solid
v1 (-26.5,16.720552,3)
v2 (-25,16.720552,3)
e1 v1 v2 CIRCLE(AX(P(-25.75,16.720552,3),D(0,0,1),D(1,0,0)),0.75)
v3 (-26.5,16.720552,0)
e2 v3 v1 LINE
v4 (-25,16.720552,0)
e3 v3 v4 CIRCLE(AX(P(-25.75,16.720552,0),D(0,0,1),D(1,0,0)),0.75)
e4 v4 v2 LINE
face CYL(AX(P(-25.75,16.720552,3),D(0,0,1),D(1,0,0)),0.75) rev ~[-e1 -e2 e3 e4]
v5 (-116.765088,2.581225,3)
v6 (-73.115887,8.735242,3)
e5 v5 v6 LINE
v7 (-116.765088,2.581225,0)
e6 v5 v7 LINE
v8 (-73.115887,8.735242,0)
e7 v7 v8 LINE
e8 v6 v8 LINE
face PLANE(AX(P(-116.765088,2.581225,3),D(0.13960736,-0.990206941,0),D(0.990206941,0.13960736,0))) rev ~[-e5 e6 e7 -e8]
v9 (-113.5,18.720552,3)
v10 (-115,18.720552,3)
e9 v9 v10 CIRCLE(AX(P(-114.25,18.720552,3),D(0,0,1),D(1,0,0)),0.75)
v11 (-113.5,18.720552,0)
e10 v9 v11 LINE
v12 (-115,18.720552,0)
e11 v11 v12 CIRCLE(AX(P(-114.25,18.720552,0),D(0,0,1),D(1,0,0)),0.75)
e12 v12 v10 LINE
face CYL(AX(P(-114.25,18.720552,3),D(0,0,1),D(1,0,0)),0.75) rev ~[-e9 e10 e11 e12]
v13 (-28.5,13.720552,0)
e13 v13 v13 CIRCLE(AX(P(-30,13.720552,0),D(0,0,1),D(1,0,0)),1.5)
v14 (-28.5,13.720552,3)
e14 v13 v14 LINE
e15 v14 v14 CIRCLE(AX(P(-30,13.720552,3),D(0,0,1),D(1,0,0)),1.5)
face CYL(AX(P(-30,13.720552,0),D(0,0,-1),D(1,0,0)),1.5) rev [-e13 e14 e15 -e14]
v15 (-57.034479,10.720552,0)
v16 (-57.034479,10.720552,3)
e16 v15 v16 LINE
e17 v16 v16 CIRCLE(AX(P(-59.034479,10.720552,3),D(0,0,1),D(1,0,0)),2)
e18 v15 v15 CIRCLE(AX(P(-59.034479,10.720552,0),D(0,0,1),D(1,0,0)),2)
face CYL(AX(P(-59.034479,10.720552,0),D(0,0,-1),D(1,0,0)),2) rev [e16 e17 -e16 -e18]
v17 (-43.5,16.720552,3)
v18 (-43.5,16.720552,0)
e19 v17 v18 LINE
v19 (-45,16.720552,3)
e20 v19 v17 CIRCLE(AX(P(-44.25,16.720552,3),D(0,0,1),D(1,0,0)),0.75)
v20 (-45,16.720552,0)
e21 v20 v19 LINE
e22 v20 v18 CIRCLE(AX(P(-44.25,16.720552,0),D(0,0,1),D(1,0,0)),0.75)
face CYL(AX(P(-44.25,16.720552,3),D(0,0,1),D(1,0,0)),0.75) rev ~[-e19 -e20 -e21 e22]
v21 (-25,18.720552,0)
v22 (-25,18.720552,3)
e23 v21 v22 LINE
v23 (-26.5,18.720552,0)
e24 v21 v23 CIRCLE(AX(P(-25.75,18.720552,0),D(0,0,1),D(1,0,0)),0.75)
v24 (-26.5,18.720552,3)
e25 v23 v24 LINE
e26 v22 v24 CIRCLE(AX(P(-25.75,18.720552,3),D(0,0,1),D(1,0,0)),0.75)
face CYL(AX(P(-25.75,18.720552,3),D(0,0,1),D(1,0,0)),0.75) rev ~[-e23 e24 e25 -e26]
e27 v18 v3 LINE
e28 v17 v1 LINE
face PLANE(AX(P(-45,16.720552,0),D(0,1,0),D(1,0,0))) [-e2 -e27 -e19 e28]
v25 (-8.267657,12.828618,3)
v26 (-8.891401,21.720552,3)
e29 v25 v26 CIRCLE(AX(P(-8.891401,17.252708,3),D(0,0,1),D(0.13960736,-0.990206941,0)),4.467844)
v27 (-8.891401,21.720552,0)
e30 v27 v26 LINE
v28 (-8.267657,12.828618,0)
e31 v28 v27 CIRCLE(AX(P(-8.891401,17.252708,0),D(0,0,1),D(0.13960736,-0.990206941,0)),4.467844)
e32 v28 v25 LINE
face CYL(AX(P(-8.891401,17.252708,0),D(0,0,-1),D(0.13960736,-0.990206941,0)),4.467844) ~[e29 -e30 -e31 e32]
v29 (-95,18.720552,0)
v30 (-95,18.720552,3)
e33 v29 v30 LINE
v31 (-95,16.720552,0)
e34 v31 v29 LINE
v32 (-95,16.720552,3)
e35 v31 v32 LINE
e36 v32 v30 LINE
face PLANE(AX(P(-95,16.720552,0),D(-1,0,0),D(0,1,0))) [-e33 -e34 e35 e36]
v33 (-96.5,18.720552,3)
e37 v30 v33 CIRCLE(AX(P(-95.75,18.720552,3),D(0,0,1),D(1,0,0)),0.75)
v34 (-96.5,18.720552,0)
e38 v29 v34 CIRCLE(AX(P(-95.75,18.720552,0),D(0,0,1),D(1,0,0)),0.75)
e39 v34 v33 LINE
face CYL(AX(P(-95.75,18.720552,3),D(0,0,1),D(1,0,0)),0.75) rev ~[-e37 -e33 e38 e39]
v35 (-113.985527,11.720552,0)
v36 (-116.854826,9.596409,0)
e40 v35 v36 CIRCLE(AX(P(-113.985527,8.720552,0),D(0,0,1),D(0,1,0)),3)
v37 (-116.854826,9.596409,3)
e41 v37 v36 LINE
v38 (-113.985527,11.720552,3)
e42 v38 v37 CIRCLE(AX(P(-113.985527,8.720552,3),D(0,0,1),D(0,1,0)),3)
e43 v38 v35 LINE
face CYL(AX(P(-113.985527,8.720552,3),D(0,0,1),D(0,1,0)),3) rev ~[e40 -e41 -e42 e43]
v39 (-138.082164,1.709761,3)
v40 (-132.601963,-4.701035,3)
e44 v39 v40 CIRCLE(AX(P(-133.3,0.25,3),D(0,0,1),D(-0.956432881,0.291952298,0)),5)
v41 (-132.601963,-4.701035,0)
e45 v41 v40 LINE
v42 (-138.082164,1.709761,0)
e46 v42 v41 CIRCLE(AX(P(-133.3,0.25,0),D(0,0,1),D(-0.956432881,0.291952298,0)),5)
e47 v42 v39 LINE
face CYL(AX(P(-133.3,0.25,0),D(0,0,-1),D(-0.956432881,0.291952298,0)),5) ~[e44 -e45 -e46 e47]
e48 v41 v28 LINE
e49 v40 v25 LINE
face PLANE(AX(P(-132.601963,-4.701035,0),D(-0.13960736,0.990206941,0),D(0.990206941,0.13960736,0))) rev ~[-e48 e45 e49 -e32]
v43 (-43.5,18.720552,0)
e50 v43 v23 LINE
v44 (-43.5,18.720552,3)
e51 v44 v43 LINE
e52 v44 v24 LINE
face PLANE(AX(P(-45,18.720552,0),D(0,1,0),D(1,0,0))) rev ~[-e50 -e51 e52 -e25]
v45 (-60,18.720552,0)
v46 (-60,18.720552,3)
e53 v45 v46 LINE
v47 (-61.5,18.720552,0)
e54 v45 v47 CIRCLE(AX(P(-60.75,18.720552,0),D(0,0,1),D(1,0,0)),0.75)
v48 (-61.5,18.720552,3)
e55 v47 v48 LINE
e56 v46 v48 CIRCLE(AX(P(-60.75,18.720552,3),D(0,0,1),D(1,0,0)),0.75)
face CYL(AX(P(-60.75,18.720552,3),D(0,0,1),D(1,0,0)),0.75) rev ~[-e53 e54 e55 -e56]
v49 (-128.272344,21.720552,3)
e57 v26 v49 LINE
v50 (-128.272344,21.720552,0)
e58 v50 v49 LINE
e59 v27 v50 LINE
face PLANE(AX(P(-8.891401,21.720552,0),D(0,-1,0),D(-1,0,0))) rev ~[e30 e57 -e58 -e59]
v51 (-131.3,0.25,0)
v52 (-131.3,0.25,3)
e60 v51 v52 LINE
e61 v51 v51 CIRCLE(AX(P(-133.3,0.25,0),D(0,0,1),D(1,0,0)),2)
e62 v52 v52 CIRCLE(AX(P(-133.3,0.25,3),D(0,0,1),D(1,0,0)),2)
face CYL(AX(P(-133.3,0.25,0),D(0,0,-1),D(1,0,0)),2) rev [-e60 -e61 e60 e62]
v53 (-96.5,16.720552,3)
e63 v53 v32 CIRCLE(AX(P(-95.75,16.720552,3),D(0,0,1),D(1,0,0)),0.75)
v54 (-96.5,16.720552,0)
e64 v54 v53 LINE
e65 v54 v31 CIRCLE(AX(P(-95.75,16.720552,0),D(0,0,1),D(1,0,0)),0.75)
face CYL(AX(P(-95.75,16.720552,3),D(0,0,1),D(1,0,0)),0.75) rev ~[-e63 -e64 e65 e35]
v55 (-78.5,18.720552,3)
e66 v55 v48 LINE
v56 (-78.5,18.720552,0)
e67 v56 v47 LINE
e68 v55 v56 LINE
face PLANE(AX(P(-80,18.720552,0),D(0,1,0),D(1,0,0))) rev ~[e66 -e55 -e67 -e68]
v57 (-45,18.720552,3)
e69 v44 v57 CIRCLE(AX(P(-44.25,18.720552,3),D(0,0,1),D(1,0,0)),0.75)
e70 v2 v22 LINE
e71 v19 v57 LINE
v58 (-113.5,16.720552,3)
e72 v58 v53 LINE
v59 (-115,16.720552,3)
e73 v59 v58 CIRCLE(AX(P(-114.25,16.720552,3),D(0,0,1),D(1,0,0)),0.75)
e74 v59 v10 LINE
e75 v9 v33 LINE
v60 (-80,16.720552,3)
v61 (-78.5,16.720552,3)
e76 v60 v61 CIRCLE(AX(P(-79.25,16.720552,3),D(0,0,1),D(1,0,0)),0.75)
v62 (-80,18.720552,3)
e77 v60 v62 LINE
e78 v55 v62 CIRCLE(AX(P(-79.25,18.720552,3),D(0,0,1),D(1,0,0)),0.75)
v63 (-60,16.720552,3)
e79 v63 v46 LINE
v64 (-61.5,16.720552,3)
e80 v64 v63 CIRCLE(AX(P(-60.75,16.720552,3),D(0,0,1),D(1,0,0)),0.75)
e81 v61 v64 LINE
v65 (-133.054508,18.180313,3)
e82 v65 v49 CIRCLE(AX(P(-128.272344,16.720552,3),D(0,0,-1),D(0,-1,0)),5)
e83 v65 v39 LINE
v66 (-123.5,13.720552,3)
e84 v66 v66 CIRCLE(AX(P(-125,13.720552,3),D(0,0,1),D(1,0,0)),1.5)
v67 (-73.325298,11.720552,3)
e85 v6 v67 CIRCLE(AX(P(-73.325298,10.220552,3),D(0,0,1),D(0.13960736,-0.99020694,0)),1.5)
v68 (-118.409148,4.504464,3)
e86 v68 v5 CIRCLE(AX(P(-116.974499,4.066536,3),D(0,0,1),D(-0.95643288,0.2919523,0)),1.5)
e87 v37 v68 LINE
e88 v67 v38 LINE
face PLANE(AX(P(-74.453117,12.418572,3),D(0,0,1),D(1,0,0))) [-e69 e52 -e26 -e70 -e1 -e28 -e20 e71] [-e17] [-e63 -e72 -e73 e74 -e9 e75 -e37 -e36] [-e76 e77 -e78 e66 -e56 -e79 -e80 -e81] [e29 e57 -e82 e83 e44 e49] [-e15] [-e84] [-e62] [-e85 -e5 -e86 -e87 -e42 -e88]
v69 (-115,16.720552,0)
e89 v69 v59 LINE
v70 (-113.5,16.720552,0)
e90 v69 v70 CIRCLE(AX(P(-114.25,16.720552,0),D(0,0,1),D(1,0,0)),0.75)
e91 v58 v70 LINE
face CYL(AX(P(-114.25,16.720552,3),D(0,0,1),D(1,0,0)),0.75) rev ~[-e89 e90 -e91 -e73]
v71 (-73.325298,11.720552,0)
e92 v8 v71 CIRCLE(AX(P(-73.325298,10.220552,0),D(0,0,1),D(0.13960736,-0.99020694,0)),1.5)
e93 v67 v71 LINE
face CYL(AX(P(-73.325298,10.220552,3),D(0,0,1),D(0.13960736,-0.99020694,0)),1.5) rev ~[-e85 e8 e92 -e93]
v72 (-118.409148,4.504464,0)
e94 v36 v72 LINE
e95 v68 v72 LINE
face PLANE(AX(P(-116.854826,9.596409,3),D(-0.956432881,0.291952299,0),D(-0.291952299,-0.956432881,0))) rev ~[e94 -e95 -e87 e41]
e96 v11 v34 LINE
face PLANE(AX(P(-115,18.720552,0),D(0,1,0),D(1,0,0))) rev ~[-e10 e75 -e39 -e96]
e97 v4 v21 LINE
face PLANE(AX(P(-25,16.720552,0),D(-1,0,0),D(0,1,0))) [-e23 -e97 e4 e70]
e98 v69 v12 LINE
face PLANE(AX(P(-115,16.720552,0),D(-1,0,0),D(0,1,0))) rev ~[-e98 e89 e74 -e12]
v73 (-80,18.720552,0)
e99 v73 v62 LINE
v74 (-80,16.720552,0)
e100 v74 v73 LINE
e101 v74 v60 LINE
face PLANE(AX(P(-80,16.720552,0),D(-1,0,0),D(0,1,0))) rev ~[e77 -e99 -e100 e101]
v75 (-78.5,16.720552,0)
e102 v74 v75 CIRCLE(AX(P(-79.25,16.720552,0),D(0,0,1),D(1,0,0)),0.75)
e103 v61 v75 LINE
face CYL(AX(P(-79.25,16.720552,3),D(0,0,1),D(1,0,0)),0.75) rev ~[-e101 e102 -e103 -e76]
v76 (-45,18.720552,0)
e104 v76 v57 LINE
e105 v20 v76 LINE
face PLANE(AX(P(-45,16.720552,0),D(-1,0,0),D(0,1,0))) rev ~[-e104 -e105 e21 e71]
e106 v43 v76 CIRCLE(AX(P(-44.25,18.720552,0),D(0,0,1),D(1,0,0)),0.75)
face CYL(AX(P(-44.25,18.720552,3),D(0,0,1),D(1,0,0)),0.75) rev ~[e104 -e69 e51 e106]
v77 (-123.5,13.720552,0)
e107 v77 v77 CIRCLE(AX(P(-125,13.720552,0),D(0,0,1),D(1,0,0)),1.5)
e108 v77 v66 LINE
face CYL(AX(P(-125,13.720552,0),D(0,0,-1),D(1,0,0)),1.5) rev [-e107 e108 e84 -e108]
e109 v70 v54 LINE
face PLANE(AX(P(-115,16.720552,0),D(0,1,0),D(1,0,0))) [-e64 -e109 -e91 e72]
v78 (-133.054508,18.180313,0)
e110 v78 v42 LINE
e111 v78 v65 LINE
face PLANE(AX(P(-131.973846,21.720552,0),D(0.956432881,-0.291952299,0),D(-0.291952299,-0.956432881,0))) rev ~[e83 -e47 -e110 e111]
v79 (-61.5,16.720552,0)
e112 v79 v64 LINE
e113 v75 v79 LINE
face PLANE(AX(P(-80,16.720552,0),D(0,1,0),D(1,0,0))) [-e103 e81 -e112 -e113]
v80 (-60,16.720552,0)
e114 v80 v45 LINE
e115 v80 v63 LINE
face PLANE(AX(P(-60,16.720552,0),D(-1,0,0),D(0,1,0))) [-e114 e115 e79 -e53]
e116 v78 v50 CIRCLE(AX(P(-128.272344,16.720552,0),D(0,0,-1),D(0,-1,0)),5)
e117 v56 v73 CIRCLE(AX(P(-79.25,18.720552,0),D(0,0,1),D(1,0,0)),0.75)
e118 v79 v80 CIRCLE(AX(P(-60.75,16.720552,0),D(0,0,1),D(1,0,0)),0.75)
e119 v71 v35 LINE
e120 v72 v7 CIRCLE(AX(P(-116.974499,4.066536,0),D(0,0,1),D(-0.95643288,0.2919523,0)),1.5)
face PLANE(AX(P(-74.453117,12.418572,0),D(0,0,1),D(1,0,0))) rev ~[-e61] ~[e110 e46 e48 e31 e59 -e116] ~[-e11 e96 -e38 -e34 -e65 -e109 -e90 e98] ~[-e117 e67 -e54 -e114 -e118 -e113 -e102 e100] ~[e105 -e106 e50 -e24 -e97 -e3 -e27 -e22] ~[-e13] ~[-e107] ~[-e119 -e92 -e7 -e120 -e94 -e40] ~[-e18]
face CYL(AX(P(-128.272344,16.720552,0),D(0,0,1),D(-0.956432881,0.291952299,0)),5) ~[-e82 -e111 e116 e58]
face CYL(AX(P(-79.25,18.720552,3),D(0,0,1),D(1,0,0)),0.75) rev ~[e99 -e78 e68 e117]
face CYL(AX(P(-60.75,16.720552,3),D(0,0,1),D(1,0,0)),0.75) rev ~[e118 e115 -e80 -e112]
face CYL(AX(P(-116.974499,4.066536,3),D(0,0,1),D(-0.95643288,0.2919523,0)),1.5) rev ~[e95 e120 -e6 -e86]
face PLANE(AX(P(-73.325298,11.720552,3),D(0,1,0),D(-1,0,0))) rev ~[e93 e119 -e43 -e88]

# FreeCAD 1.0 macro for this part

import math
import FreeCAD as App
import Part
import Sketcher


def edges_at(feature, points):
    """Names of the edges that pass closest to the given points."""
    edges = feature.Shape.Edges
    near = lambda p: min(range(len(edges)), key=lambda i: edges[i].distToShape(Part.Vertex(*p))[0])
    return sorted({f"Edge{near(p) + 1}" for p in points})

doc = App.newDocument("Part")
body = doc.addObject("PartDesign::Body", "Body")

sketch1 = doc.addObject("Sketcher::SketchObject", "Sketch")
body.addObject(sketch1)
sketch1.AttachmentSupport = (doc.XY_Plane, [""])
sketch1.MapMode = "FlatFace"
sketch1.addGeometry([
    Part.LineSegment(App.Vector(-132.6, -4.7, 0), App.Vector(-8.3, 12.8, 0)),
    Part.ArcOfCircle(Part.Circle(App.Vector(-8.9, 17.3, 0), App.Vector(0, 0, 1), 4.5), math.radians(-82), math.radians(90)),
    Part.LineSegment(App.Vector(-8.9, 21.7, 0), App.Vector(-132, 21.7, 0)),
    Part.LineSegment(App.Vector(-132, 21.7, 0), App.Vector(-138.1, 1.7, 0)),
    Part.ArcOfCircle(Part.Circle(App.Vector(-133.3, 0.3, 0), App.Vector(0, 0, 1), 5), math.radians(163), math.radians(278)),
    Part.Circle(App.Vector(-133.3, 0.2, 0), App.Vector(0, 0, 1), 2),
    Part.Circle(App.Vector(-125, 13.7, 0), App.Vector(0, 0, 1), 1.5),
    Part.LineSegment(App.Vector(-95, 16.7, 0), App.Vector(-115, 16.7, 0)),
    Part.LineSegment(App.Vector(-115, 16.7, 0), App.Vector(-115, 18.7, 0)),
    Part.LineSegment(App.Vector(-115, 18.7, 0), App.Vector(-95, 18.7, 0)),
    Part.LineSegment(App.Vector(-95, 18.7, 0), App.Vector(-95, 16.7, 0)),
    Part.Circle(App.Vector(-59, 10.7, 0), App.Vector(0, 0, 1), 2),
    Part.LineSegment(App.Vector(-60, 16.7, 0), App.Vector(-80, 16.7, 0)),
    Part.LineSegment(App.Vector(-80, 16.7, 0), App.Vector(-80, 18.7, 0)),
    Part.LineSegment(App.Vector(-80, 18.7, 0), App.Vector(-60, 18.7, 0)),
    Part.LineSegment(App.Vector(-60, 18.7, 0), App.Vector(-60, 16.7, 0)),
    Part.Circle(App.Vector(-30, 13.7, 0), App.Vector(0, 0, 1), 1.5),
    Part.LineSegment(App.Vector(-25, 16.7, 0), App.Vector(-45, 16.7, 0)),
    Part.LineSegment(App.Vector(-45, 16.7, 0), App.Vector(-45, 18.7, 0)),
    Part.LineSegment(App.Vector(-45, 18.7, 0), App.Vector(-25, 18.7, 0)),
    Part.LineSegment(App.Vector(-25, 18.7, 0), App.Vector(-25, 16.7, 0)),
], False)
sketch1.addConstraint([
    Sketcher.Constraint("Tangent", 0, 2, 1, 1),
    Sketcher.Constraint("Tangent", 1, 2, 2, 1),
    Sketcher.Constraint("Coincident", 2, 2, 3, 1),
    Sketcher.Constraint("Tangent", 3, 2, 4, 1),
    Sketcher.Constraint("Tangent", 4, 2, 0, 1),
    Sketcher.Constraint("Coincident", 7, 2, 8, 1),
    Sketcher.Constraint("Coincident", 8, 2, 9, 1),
    Sketcher.Constraint("Coincident", 9, 2, 10, 1),
    Sketcher.Constraint("Coincident", 10, 2, 7, 1),
    Sketcher.Constraint("Coincident", 12, 2, 13, 1),
    Sketcher.Constraint("Coincident", 13, 2, 14, 1),
    Sketcher.Constraint("Coincident", 14, 2, 15, 1),
    Sketcher.Constraint("Coincident", 15, 2, 12, 1),
    Sketcher.Constraint("Coincident", 17, 2, 18, 1),
    Sketcher.Constraint("Coincident", 18, 2, 19, 1),
    Sketcher.Constraint("Coincident", 19, 2, 20, 1),
    Sketcher.Constraint("Coincident", 20, 2, 17, 1),
    Sketcher.Constraint("Horizontal", 2),
    Sketcher.Constraint("Horizontal", 7),
    Sketcher.Constraint("Vertical", 8),
    Sketcher.Constraint("Horizontal", 9),
    Sketcher.Constraint("Vertical", 10),
    Sketcher.Constraint("Horizontal", 12),
    Sketcher.Constraint("Vertical", 13),
    Sketcher.Constraint("Horizontal", 14),
    Sketcher.Constraint("Vertical", 15),
    Sketcher.Constraint("Horizontal", 17),
    Sketcher.Constraint("Vertical", 18),
    Sketcher.Constraint("Horizontal", 19),
    Sketcher.Constraint("Vertical", 20),
    Sketcher.Constraint("Coincident", 5, 3, 4, 3),
    Sketcher.Constraint("Equal", 5, 11),
    Sketcher.Constraint("Equal", 6, 16),
    Sketcher.Constraint("Horizontal", 6, 3, 16, 3),
    Sketcher.Constraint("Horizontal", 10, 2, 12, 2),
    Sketcher.Constraint("Horizontal", 9, 2, 13, 2),
    Sketcher.Constraint("Horizontal", 15, 2, 17, 2),
    Sketcher.Constraint("Horizontal", 14, 2, 18, 2),
    Sketcher.Constraint("Equal", 9, 12),
    Sketcher.Constraint("Equal", 14, 17),
    Sketcher.Constraint("Diameter", 5, 4.0),
    Sketcher.Constraint("Diameter", 6, 3.0),
    Sketcher.Constraint("Radius", 4, 5.0),
    Sketcher.Constraint("DistanceX", 7, 2, 7, 1, 20.0),
    Sketcher.Constraint("DistanceY", 8, 1, 8, 2, 2.0),
    Sketcher.Constraint("DistanceX", 6, 3, -1, 1, 125.0),
    Sketcher.Constraint("DistanceX", 16, 3, -1, 1, 30.0),
    Sketcher.Constraint("DistanceX", 7, 2, -1, 1, 115.0),
    Sketcher.Constraint("DistanceX", 12, 2, -1, 1, 80.0),
    Sketcher.Constraint("DistanceX", 17, 2, -1, 1, 45.0),
    Sketcher.Constraint("DistanceY", 11, 3, 6, 3, 3.0),
    Sketcher.Constraint("DistanceY", 16, 3, 1, 2, 8.0),
    Sketcher.Constraint("DistanceY", 6, 3, 7, 2, 3.0),
    Sketcher.Constraint("DistanceX", 4, 3, -1, 1, 133.3),
    Sketcher.Constraint("DistanceY", -1, 1, 4, 3, 0.25),
    Sketcher.Constraint("Radius", 1, 4.467844),
    Sketcher.Constraint("DistanceX", 1, 3, -1, 1, 8.891401),
    Sketcher.Constraint("DistanceX", 3, 2, 4, 2, 5.480201),
    Sketcher.Constraint("Distance", 0, 125.563962),
    Sketcher.Constraint("DistanceX", 11, 3, -1, 1, 59.034479),
])
pad1 = doc.addObject("PartDesign::Pad", "Pad")
body.addObject(pad1)
pad1.Profile = sketch1
pad1.Length = 3

sketch2 = doc.addObject("Sketcher::SketchObject", "Sketch001")
body.addObject(sketch2)
sketch2.AttachmentSupport = (doc.XY_Plane, [""])
sketch2.MapMode = "FlatFace"
sketch2.AttachmentOffset = App.Placement(App.Vector(0, 0, 3), App.Rotation())
sketch2.addGeometry([
    Part.Circle(App.Vector(-114.2, 18.7, 0), App.Vector(0, 0, 1), 0.8),
    Part.Circle(App.Vector(-114.2, 16.7, 0), App.Vector(0, 0, 1), 0.8),
    Part.Circle(App.Vector(-95.8, 18.7, 0), App.Vector(0, 0, 1), 0.8),
    Part.Circle(App.Vector(-95.8, 16.7, 0), App.Vector(0, 0, 1), 0.8),
    Part.Circle(App.Vector(-79.2, 18.7, 0), App.Vector(0, 0, 1), 0.8),
    Part.Circle(App.Vector(-79.2, 16.7, 0), App.Vector(0, 0, 1), 0.8),
    Part.Circle(App.Vector(-60.8, 18.7, 0), App.Vector(0, 0, 1), 0.8),
    Part.Circle(App.Vector(-60.8, 16.7, 0), App.Vector(0, 0, 1), 0.8),
    Part.Circle(App.Vector(-44.2, 18.7, 0), App.Vector(0, 0, 1), 0.8),
    Part.Circle(App.Vector(-44.2, 16.7, 0), App.Vector(0, 0, 1), 0.8),
    Part.Circle(App.Vector(-25.8, 18.7, 0), App.Vector(0, 0, 1), 0.8),
    Part.Circle(App.Vector(-25.8, 16.7, 0), App.Vector(0, 0, 1), 0.8),
    Part.LineSegment(App.Vector(-116.9, 9.6, 0), App.Vector(-118.4, 4.5, 0)),
    Part.ArcOfCircle(Part.Circle(App.Vector(-117, 4.1, 0), App.Vector(0, 0, 1), 1.5), math.radians(163), math.radians(278)),
    Part.LineSegment(App.Vector(-116.8, 2.6, 0), App.Vector(-73.1, 8.7, 0)),
    Part.ArcOfCircle(Part.Circle(App.Vector(-73.3, 10.2, 0), App.Vector(0, 0, 1), 1.5), math.radians(-82), math.radians(90)),
    Part.LineSegment(App.Vector(-73.3, 11.7, 0), App.Vector(-114, 11.7, 0)),
    Part.ArcOfCircle(Part.Circle(App.Vector(-114, 8.7, 0), App.Vector(0, 0, 1), 3), math.radians(90), math.radians(163)),
], False)
sketch2.addConstraint([
    Sketcher.Constraint("Tangent", 12, 2, 13, 1),
    Sketcher.Constraint("Tangent", 13, 2, 14, 1),
    Sketcher.Constraint("Tangent", 14, 2, 15, 1),
    Sketcher.Constraint("Tangent", 15, 2, 16, 1),
    Sketcher.Constraint("Tangent", 16, 2, 17, 1),
    Sketcher.Constraint("Tangent", 17, 2, 12, 1),
    Sketcher.Constraint("Horizontal", 16),
    Sketcher.Constraint("Equal", 0, 1),
    Sketcher.Constraint("Equal", 1, 2),
    Sketcher.Constraint("Equal", 2, 3),
    Sketcher.Constraint("Equal", 3, 4),
    Sketcher.Constraint("Equal", 4, 5),
    Sketcher.Constraint("Equal", 5, 6),
    Sketcher.Constraint("Equal", 6, 7),
    Sketcher.Constraint("Equal", 7, 8),
    Sketcher.Constraint("Equal", 8, 9),
    Sketcher.Constraint("Equal", 9, 10),
    Sketcher.Constraint("Equal", 10, 11),
    Sketcher.Constraint("Equal", 13, 15),
    Sketcher.Constraint("Horizontal", 0, 3, 2, 3),
    Sketcher.Constraint("Horizontal", 1, 3, 3, 3),
    Sketcher.Constraint("Horizontal", 2, 3, 4, 3),
    Sketcher.Constraint("Horizontal", 3, 3, 5, 3),
    Sketcher.Constraint("Horizontal", 4, 3, 6, 3),
    Sketcher.Constraint("Horizontal", 5, 3, 7, 3),
    Sketcher.Constraint("Horizontal", 6, 3, 8, 3),
    Sketcher.Constraint("Horizontal", 7, 3, 9, 3),
    Sketcher.Constraint("Horizontal", 8, 3, 10, 3),
    Sketcher.Constraint("Horizontal", 9, 3, 11, 3),
    Sketcher.Constraint("Vertical", 0, 3, 1, 3),
    Sketcher.Constraint("Vertical", 2, 3, 3, 3),
    Sketcher.Constraint("Vertical", 4, 3, 5, 3),
    Sketcher.Constraint("Vertical", 6, 3, 7, 3),
    Sketcher.Constraint("Vertical", 8, 3, 9, 3),
    Sketcher.Constraint("Vertical", 10, 3, 11, 3),
    Sketcher.Constraint("Radius", 17, 3.0),
    Sketcher.Constraint("Diameter", 0, 1.5),
    Sketcher.Constraint("Radius", 13, 1.5),
    Sketcher.Constraint("DistanceY", 1, 3, 0, 3, 2.0),
    Sketcher.Constraint("DistanceX", 0, 3, 4, 3, 35.0),
    Sketcher.Constraint("DistanceX", 2, 3, 6, 3, 35.0),
    Sketcher.Constraint("DistanceX", 4, 3, 8, 3, 35.0),
    Sketcher.Constraint("DistanceX", 6, 3, 10, 3, 35.0),
    Sketcher.Constraint("DistanceY", 17, 3, 1, 3, 8.0),
    Sketcher.Constraint("DistanceX", 0, 3, 2, 3, 18.5),
    Sketcher.Constraint("DistanceX", 0, 3, -1, 1, 114.25),
    Sketcher.Constraint("DistanceX", 16, 2, 16, 1, 40.660229),
    Sketcher.Constraint("DistanceX", 13, 3, -1, 1, 116.974499),
    Sketcher.Constraint("DistanceX", 15, 3, -1, 1, 73.325298),
    Sketcher.Constraint("DistanceX", 17, 2, 17, 3, 2.869299),
    Sketcher.Constraint("DistanceY", -1, 1, 0, 3, 18.720552),
])
pocket1 = doc.addObject("PartDesign::Pocket", "Pocket")
body.addObject(pocket1)
pocket1.Profile = sketch2
pocket1.Type = "ThroughAll"
doc.recompute()

fillet = doc.addObject("PartDesign::Fillet", "Fillet")
body.addObject(fillet)
fillet.Base = (pocket1, edges_at(pocket1, [(-131.974, 21.721, 1.5)]))
fillet.Radius = 5

doc.recompute()
